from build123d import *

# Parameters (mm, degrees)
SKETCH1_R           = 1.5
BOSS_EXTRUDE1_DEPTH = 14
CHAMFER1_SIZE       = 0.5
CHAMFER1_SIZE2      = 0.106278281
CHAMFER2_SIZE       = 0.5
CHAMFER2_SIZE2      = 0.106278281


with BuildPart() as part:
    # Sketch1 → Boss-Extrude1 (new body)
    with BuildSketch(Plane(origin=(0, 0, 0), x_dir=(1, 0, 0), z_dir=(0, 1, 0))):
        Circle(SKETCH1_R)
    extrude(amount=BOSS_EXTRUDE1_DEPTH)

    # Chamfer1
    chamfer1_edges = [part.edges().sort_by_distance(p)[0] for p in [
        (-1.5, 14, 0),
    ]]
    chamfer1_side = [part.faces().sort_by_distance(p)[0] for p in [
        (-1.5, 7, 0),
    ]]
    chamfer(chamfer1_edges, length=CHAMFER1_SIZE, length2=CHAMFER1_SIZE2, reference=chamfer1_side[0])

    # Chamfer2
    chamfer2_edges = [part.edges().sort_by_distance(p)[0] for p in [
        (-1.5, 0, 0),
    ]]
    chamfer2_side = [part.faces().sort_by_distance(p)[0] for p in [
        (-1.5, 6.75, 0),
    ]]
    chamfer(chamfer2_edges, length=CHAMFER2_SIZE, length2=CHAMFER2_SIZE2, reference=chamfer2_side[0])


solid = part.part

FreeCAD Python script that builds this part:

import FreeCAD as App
import Part
import Sketcher
from FreeCAD import Vector
Q = App.Units.Quantity


def edges_at(feature, points):
    """Names of the edges that pass closest to the given points."""
    edges = feature.Shape.Edges
    near = lambda p: min(range(len(edges)), key=lambda i: edges[i].distToShape(Part.Vertex(*p))[0])
    return sorted({f"Edge{near(p) + 1}" for p in points})

doc = App.newDocument("Part")
body = doc.addObject("PartDesign::Body", "Body")

# Sketch on XZ plane
sketch1 = doc.addObject("Sketcher::SketchObject", "Sketch")
body.addObject(sketch1)
sketch1.AttachmentSupport = (doc.XZ_Plane, [""])
sketch1.MapMode = "FlatFace"
sketch1.addGeometry(Part.Circle(Vector(0, 0, 0), Vector(0, 0, 1), 1.5), False)
sketch1.addConstraint(Sketcher.Constraint("Coincident", 0, 3, -1, 1))
sketch1.addConstraint(Sketcher.Constraint("Diameter", 0, Q("3 mm")))
pad1 = doc.addObject("PartDesign::Pad", "Pad")
body.addObject(pad1)
pad1.Profile = sketch1
pad1.Length = 14
pad1.Reversed = True
doc.recompute()

chamfer = doc.addObject("PartDesign::Chamfer", "Chamfer")
body.addObject(chamfer)
chamfer.Base = (pad1, edges_at(pad1, [(-1.5, 14, 0)]))
chamfer.ChamferType = "Two distances"
chamfer.Size = 0.5
chamfer.Size2 = 0.106278
doc.recompute()

chamfer2 = doc.addObject("PartDesign::Chamfer", "Chamfer001")
body.addObject(chamfer2)
chamfer2.Base = (chamfer, edges_at(chamfer, [(-1.5, 0, 0)]))
chamfer2.ChamferType = "Two distances"
chamfer2.Size = 0.5
chamfer2.Size2 = 0.106278

doc.recompute()
